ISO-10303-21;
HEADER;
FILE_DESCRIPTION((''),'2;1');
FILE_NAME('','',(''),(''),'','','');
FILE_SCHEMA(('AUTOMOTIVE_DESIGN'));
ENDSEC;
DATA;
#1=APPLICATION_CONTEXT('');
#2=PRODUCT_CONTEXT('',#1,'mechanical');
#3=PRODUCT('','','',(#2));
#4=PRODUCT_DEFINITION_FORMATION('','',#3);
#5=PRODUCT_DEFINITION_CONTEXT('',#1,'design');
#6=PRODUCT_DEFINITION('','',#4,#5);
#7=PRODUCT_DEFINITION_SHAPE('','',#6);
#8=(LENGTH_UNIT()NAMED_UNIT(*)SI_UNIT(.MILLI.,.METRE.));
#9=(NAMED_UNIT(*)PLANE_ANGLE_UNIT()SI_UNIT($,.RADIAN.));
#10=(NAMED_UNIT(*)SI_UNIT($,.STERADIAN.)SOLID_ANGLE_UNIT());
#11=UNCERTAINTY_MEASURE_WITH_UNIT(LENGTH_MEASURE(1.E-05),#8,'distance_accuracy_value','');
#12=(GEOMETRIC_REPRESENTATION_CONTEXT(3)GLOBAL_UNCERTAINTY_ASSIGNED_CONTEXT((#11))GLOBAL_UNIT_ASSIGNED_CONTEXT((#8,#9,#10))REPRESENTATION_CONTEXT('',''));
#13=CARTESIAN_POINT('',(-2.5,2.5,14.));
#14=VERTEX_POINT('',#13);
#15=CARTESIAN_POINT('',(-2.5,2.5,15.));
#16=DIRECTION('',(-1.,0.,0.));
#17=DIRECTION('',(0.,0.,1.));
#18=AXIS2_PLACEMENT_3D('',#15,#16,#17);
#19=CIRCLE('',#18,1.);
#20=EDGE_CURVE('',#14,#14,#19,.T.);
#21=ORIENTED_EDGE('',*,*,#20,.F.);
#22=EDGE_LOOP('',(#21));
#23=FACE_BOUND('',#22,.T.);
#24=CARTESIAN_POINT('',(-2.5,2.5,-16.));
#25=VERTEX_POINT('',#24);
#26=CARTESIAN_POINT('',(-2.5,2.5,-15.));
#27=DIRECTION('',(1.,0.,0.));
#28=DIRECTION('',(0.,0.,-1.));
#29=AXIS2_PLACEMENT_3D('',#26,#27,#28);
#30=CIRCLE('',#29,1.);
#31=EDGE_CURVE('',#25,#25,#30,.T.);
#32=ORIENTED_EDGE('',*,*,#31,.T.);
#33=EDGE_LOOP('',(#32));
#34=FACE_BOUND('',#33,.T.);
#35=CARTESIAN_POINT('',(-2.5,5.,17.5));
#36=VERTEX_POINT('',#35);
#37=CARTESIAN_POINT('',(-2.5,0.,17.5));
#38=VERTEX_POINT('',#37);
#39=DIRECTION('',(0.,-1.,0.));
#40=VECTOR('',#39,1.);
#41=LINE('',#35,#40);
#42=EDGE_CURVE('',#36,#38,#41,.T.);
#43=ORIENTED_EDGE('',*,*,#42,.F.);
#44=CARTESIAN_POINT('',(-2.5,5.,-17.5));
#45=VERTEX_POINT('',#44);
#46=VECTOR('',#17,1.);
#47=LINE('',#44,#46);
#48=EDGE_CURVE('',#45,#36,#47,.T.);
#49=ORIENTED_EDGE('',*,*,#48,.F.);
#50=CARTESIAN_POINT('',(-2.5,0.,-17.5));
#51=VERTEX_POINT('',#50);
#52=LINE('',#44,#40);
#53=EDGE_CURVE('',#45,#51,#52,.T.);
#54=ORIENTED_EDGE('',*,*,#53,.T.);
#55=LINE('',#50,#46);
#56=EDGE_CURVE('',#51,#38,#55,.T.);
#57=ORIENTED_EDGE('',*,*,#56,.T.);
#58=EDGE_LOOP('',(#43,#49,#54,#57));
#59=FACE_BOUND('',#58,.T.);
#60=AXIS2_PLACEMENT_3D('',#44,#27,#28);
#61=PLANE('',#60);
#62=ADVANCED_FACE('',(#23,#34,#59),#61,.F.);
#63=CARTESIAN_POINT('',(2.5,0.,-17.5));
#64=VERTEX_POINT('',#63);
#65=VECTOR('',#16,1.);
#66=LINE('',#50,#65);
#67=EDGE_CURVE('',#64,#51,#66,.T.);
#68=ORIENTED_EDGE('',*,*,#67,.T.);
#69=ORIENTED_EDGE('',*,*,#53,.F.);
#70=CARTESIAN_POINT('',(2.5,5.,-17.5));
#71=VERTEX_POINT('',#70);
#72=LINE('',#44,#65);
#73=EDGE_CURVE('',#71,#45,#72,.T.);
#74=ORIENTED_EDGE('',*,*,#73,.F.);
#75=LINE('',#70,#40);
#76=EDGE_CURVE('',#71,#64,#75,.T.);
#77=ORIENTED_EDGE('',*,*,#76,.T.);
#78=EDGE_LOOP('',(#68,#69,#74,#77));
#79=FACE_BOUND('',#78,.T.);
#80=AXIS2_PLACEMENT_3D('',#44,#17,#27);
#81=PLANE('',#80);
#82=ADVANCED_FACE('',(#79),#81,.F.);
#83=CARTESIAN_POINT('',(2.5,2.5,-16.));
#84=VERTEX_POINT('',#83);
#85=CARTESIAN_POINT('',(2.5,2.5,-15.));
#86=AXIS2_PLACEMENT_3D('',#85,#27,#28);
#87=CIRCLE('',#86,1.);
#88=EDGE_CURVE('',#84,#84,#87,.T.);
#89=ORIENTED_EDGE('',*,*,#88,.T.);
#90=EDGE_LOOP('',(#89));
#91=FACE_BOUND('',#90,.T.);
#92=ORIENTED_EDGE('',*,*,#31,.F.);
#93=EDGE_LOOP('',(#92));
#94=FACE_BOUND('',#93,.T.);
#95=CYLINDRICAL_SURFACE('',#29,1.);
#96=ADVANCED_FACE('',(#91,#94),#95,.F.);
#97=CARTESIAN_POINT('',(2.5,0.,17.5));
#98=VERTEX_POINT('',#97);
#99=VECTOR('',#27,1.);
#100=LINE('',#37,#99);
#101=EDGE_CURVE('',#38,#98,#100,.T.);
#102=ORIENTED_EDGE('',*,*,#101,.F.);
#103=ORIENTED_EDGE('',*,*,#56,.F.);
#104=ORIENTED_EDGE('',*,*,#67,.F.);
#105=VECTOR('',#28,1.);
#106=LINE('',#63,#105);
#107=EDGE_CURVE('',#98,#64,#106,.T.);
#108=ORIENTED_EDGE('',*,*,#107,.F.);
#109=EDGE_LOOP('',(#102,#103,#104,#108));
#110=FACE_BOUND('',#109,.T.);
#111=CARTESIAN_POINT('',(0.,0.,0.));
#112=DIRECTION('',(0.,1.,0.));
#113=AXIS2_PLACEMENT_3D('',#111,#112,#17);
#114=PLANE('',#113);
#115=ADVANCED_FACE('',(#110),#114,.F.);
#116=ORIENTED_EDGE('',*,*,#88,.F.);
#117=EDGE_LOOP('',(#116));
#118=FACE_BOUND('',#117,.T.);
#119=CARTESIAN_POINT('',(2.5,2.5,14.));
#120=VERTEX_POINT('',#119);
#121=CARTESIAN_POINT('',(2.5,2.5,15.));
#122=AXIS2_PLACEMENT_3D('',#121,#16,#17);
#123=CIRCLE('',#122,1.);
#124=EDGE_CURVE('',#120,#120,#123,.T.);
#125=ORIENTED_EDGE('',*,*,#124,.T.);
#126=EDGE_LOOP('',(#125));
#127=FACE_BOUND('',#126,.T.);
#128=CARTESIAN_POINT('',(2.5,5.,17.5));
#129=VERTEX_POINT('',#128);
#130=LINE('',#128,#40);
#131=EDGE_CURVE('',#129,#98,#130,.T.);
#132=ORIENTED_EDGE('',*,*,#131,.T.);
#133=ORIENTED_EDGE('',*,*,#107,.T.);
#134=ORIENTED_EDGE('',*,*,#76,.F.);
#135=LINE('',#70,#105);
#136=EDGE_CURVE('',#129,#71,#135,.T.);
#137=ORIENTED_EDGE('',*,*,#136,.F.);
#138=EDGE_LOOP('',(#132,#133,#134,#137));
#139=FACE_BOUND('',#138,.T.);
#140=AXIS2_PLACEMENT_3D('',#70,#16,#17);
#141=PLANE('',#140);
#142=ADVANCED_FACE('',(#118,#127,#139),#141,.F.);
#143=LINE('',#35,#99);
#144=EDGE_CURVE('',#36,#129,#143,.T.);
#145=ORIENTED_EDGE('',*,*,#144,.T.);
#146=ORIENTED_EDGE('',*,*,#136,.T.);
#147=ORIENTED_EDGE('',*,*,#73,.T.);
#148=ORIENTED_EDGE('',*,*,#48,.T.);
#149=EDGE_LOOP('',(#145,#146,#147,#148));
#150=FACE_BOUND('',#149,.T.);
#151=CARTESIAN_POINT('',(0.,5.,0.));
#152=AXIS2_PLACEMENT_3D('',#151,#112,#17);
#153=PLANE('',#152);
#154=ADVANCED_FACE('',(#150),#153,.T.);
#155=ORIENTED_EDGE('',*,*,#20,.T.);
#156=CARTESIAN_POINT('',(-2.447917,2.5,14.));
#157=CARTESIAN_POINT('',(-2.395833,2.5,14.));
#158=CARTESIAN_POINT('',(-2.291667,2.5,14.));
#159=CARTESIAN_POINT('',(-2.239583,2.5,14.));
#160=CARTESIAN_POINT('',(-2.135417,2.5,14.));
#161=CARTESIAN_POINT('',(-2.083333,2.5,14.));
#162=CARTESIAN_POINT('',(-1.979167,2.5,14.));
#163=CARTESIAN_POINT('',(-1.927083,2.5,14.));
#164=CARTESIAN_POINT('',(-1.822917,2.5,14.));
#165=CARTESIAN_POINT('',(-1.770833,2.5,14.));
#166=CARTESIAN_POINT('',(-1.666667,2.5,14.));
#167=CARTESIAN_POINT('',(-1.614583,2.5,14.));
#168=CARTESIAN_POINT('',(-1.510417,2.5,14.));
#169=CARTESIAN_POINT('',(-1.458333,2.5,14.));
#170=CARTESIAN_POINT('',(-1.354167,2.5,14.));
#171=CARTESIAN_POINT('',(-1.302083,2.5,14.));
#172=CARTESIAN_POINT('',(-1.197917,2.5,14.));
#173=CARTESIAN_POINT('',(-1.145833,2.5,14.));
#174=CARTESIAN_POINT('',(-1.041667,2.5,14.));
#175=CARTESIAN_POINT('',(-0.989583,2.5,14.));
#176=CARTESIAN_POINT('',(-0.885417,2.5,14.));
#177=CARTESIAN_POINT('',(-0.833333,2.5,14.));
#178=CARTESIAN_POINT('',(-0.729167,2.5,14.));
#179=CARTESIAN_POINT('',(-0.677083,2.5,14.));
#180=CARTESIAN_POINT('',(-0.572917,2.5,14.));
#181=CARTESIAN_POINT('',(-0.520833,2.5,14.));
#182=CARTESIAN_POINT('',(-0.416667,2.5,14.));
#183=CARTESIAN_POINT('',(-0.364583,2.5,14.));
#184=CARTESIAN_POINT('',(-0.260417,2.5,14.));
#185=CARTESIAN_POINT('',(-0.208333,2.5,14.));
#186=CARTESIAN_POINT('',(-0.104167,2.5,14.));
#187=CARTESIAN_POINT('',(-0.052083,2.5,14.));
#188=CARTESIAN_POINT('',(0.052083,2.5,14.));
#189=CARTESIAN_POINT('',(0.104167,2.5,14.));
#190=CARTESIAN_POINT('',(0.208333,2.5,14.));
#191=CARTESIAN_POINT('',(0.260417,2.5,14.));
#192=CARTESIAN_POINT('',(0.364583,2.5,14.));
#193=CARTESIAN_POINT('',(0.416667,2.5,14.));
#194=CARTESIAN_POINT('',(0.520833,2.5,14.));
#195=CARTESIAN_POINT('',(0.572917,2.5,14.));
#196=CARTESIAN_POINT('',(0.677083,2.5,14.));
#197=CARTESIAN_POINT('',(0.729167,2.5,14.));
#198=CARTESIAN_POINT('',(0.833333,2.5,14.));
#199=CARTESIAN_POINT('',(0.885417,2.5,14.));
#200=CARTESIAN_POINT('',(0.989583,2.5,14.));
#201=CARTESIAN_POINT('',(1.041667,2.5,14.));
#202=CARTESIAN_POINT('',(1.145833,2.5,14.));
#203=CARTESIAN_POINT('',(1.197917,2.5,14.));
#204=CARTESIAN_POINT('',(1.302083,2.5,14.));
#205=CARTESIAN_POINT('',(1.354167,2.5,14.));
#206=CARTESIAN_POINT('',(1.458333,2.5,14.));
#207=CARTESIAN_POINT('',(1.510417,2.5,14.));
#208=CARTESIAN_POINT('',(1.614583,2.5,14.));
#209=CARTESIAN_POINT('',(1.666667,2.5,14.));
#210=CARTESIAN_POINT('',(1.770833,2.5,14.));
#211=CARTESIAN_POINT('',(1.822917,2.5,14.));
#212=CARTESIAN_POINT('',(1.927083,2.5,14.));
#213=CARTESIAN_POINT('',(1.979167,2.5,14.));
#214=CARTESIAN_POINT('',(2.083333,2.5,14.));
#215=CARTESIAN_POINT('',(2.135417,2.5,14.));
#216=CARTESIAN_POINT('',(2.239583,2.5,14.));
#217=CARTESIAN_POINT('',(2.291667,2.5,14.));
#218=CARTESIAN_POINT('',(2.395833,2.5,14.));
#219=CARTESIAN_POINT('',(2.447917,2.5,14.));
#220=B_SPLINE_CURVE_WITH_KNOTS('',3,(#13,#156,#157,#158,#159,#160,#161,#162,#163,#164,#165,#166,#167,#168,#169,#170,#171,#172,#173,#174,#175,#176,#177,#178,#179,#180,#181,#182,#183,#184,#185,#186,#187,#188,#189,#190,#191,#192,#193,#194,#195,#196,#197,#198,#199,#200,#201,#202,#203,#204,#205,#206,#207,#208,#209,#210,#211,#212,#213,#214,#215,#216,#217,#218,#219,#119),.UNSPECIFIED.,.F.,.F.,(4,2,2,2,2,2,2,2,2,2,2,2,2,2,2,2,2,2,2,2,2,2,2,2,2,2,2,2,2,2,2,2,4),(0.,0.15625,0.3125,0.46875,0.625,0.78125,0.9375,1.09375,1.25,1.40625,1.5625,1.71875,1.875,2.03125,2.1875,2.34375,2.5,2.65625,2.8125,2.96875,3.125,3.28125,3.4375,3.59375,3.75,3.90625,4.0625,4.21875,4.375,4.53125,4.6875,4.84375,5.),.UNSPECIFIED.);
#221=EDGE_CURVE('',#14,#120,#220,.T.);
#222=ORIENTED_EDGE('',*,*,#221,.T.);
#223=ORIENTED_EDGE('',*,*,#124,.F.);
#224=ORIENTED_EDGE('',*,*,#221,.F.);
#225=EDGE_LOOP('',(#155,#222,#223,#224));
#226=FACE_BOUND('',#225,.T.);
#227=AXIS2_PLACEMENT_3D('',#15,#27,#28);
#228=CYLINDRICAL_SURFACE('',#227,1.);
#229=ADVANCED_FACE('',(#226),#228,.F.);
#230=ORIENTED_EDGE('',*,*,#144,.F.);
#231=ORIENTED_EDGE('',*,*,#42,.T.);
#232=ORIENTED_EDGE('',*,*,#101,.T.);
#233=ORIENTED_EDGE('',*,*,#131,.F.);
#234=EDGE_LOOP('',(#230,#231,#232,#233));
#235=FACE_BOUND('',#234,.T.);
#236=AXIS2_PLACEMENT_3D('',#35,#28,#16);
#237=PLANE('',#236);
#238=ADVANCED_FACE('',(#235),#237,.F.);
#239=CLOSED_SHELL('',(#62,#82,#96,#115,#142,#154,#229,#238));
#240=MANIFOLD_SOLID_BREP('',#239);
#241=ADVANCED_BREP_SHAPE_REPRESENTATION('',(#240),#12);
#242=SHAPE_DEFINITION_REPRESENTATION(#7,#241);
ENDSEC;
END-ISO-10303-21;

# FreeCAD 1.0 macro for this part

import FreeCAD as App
import Part
import Sketcher
Q = App.Units.Quantity

doc = App.newDocument("Part")
params = doc.addObject("Spreadsheet::Sheet", "Params")
for row, (alias, value) in enumerate([
    ("sketch1_width", "5 mm"),
    ("sketch1_height", "35 mm"),
    ("pad1_length", "5 mm"),
    ("sketch2_diameter", "2 mm"),
], start=1):
    params.set(f"A{row}", alias)
    params.set(f"B{row}", "=" + value)
    params.setAlias(f"B{row}", alias)

body = doc.addObject("PartDesign::Body", "Body")

# Sketch on XZ plane
sketch1 = body.newObject("Sketcher::SketchObject", "Sketch")
sketch1.AttachmentSupport = (doc.getObject("XZ_Plane"), [""])
sketch1.MapMode = "FlatFace"
sketch1.addGeometry(Part.LineSegment(App.Vector(-2, -18, 0), App.Vector(-2, 18, 0)), False)
sketch1.addGeometry(Part.LineSegment(App.Vector(-2, 18, 0), App.Vector(2, 18, 0)), False)
sketch1.addGeometry(Part.LineSegment(App.Vector(2, 18, 0), App.Vector(2, -18, 0)), False)
sketch1.addGeometry(Part.LineSegment(App.Vector(2, -18, 0), App.Vector(-2, -18, 0)), False)
sketch1.addConstraint(Sketcher.Constraint("Coincident", 0, 2, 1, 1))
sketch1.addConstraint(Sketcher.Constraint("Coincident", 1, 2, 2, 1))
sketch1.addConstraint(Sketcher.Constraint("Coincident", 2, 2, 3, 1))
sketch1.addConstraint(Sketcher.Constraint("Coincident", 3, 2, 0, 1))
sketch1.addConstraint(Sketcher.Constraint("Vertical", 0))
sketch1.addConstraint(Sketcher.Constraint("Horizontal", 1))
sketch1.addConstraint(Sketcher.Constraint("Vertical", 2))
sketch1.addConstraint(Sketcher.Constraint("Horizontal", 3))
sketch1.addConstraint(Sketcher.Constraint("Symmetric", 0, 2, 2, 2, -1, 1))
sketch1.addConstraint(Sketcher.Constraint("DistanceX", 1, 1, 1, 2, Q("5 mm")))
sketch1.addConstraint(Sketcher.Constraint("DistanceY", 0, 1, 0, 2, Q("35 mm")))
sketch1.setExpression("Constraints[9]", "Params.sketch1_width")
sketch1.setExpression("Constraints[10]", "Params.sketch1_height")
pad1 = body.newObject("PartDesign::Pad", "Pad")
pad1.Profile = sketch1
pad1.setExpression("Length", "Params.pad1_length")
pad1.Reversed = True

# Sketch on YZ plane
sketch2 = body.newObject("Sketcher::SketchObject", "Sketch001")
sketch2.AttachmentSupport = (doc.getObject("YZ_Plane"), [""])
sketch2.MapMode = "FlatFace"
sketch2.AttachmentOffset = App.Placement(App.Vector(0, 0, 2.5), App.Rotation())
sketch2.addGeometry(Part.Circle(App.Vector(2.5, -15, 0), App.Vector(0, 0, 1), 1), False)
sketch2.addConstraint(Sketcher.Constraint("Diameter", 0, Q("2 mm")))
sketch2.addConstraint(Sketcher.Constraint("DistanceY", 0, 3, -1, 1, Q("15 mm")))
sketch2.addConstraint(Sketcher.Constraint("DistanceX", -1, 1, 0, 3, Q("2.5 mm")))
sketch2.setExpression("Constraints[0]", "Params.sketch2_diameter")
pocket1 = body.newObject("PartDesign::Pocket", "Pocket")
pocket1.Profile = sketch2
pocket1.Type = "ThroughAll"
doc.recompute()

mirrored = body.newObject("PartDesign::Mirrored", "Mirrored")
mirrored.Originals = [pocket1]
mirrored.MirrorPlane = (doc.getObject("XY_Plane"), [""])
body.Tip = mirrored

doc.recompute()
